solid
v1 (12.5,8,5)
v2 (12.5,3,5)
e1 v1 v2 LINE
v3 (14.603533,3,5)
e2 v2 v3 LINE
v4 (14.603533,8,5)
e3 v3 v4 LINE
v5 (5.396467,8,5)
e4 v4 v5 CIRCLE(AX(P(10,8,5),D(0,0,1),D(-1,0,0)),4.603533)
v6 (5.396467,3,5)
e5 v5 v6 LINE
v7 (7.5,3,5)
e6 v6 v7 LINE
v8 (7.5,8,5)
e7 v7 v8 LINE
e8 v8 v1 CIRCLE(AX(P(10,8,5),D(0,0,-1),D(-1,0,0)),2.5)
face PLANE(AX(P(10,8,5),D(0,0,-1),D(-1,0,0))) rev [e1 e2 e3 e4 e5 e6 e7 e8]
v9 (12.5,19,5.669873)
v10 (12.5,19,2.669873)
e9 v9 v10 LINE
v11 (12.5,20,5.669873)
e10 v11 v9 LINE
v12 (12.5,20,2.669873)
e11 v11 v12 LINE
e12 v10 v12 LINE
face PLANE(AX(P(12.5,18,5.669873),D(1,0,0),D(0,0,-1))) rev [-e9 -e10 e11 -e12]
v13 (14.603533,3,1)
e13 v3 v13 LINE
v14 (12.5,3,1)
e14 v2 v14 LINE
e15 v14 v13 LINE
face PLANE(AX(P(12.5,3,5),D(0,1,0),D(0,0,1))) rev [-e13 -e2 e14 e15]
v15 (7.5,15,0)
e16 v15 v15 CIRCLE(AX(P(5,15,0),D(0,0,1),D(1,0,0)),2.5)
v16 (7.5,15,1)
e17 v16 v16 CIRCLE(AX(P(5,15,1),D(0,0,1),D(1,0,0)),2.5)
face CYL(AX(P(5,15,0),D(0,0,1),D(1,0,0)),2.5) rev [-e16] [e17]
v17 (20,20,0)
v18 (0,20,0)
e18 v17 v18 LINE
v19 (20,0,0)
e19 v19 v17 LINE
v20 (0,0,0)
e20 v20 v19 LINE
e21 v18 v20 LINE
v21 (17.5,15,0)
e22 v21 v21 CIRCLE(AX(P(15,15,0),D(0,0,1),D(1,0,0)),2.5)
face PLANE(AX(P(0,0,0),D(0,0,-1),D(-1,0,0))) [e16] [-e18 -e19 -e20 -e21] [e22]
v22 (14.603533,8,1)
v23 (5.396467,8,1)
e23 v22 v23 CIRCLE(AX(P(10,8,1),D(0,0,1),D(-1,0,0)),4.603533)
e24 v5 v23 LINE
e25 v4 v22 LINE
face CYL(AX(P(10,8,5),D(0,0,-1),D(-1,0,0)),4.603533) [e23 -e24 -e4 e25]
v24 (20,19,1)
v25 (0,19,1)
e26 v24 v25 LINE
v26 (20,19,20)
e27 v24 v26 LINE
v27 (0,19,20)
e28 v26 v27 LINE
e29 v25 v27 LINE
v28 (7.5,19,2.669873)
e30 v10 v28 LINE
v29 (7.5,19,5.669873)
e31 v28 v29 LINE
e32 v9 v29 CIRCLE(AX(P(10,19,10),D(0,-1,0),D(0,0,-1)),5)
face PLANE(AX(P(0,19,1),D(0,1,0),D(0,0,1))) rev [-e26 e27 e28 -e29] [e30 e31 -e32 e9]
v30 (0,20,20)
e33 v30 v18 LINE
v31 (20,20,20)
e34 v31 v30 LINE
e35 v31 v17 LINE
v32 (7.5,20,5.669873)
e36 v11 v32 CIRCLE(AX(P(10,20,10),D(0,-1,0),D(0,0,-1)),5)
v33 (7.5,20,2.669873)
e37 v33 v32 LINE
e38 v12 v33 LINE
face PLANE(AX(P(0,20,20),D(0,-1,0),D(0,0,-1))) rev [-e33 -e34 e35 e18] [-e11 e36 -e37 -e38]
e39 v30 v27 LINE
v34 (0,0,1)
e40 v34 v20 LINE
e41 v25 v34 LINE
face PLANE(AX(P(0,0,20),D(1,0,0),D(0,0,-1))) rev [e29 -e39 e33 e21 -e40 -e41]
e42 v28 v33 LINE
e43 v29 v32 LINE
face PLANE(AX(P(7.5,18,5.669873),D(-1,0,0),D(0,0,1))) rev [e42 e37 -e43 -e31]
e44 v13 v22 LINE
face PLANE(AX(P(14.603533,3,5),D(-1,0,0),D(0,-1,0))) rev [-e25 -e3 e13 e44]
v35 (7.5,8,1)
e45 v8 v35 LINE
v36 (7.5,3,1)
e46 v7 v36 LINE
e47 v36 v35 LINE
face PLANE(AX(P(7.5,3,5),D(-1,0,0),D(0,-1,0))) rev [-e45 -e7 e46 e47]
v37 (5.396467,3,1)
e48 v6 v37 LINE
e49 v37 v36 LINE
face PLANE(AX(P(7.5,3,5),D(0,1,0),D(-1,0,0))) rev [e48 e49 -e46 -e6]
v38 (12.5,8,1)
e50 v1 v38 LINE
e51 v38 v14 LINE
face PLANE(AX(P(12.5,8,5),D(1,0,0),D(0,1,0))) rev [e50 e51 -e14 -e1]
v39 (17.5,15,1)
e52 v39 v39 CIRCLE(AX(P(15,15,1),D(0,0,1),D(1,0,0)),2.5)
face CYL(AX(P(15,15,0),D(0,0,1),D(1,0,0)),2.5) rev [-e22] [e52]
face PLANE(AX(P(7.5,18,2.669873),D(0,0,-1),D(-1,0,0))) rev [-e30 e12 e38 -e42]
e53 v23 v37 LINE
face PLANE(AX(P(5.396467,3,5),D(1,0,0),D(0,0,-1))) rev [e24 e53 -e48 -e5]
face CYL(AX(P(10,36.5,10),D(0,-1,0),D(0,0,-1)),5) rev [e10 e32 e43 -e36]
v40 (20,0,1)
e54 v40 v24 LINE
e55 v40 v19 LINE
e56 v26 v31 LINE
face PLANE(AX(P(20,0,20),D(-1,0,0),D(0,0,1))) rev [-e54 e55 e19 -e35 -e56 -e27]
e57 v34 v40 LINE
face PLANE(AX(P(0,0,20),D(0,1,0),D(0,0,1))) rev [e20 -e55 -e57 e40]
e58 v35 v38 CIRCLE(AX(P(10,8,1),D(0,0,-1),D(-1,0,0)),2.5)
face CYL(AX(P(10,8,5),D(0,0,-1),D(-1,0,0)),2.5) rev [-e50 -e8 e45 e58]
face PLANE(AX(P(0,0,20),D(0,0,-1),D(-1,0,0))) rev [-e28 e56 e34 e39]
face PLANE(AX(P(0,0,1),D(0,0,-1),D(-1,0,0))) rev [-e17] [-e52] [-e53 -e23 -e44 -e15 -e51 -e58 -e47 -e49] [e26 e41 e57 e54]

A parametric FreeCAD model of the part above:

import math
import FreeCAD as App
import Part
import Sketcher

V = App.Vector
Q = App.Units.Quantity

doc = App.newDocument("Part")
body = doc.addObject("PartDesign::Body", "Body")

sketch1 = body.newObject("Sketcher::SketchObject", "Sketch")
sketch1.AttachmentSupport = (doc.getObject("XY_Plane"), [""])
sketch1.MapMode = "FlatFace"
sketch1.addGeometry([
    Part.LineSegment(V(0, 20, 0), V(0, 0, 0)),
    Part.LineSegment(V(0, 0, 0), V(20, 0, 0)),
    Part.LineSegment(V(20, 0, 0), V(20, 20, 0)),
    Part.LineSegment(V(20, 20, 0), V(0, 20, 0)),
], False)
sketch1.addConstraint([
    Sketcher.Constraint("Coincident", 0, 2, 1, 1),
    Sketcher.Constraint("Coincident", 1, 2, 2, 1),
    Sketcher.Constraint("Coincident", 2, 2, 3, 1),
    Sketcher.Constraint("Coincident", 3, 2, 0, 1),
    Sketcher.Constraint("Vertical", 0),
    Sketcher.Constraint("Horizontal", 1),
    Sketcher.Constraint("Vertical", 2),
    Sketcher.Constraint("Horizontal", 3),
    Sketcher.Constraint("Coincident", 0, 2, -1, 1),
    Sketcher.Constraint("Equal", 3, 0),
    Sketcher.Constraint("DistanceX", 1, 1, 1, 2, Q("20 mm")),
])
pad1 = body.newObject("PartDesign::Pad", "Pad")
pad1.Profile = sketch1
pad1.Length = 20

sketch2 = body.newObject("Sketcher::SketchObject", "Sketch001")
sketch2.AttachmentSupport = (doc.getObject("XY_Plane"), [""])
sketch2.MapMode = "FlatFace"
sketch2.AttachmentOffset = App.Placement(V(0, 0, 20), App.Rotation())
sketch2.addGeometry([
    Part.LineSegment(V(0, 19, 0), V(0, 0, 0)),
    Part.LineSegment(V(0, 0, 0), V(20, 0, 0)),
    Part.LineSegment(V(20, 0, 0), V(20, 19, 0)),
    Part.LineSegment(V(20, 19, 0), V(0, 19, 0)),
], False)
sketch2.addConstraint([
    Sketcher.Constraint("Coincident", 0, 2, 1, 1),
    Sketcher.Constraint("Coincident", 1, 2, 2, 1),
    Sketcher.Constraint("Coincident", 2, 2, 3, 1),
    Sketcher.Constraint("Coincident", 3, 2, 0, 1),
    Sketcher.Constraint("Vertical", 0),
    Sketcher.Constraint("Horizontal", 1),
    Sketcher.Constraint("Vertical", 2),
    Sketcher.Constraint("Horizontal", 3),
    Sketcher.Constraint("Coincident", 0, 2, -1, 1),
    Sketcher.Constraint("DistanceX", 1, 1, 1, 2, Q("20 mm")),
    Sketcher.Constraint("DistanceY", 0, 2, 0, 1, Q("19 mm")),
])
pocket1 = body.newObject("PartDesign::Pocket", "Pocket")
pocket1.Profile = sketch2
pocket1.Length = 19

sketch3 = body.newObject("Sketcher::SketchObject", "Sketch002")
sketch3.AttachmentSupport = (doc.getObject("XZ_Plane"), [""])
sketch3.MapMode = "FlatFace"
sketch3.AttachmentOffset = App.Placement(V(0, 0, -19), App.Rotation())
sketch3.addGeometry(Part.Circle(V(10, 10, 0), V(0, 0, 1), 5), False)
sketch3.addConstraint([
    Sketcher.Constraint("Diameter", 0, Q("10 mm")),
    Sketcher.Constraint("DistanceX", -1, 1, 0, 3, Q("10 mm")),
    Sketcher.Constraint("DistanceY", -1, 1, 0, 3, Q("10 mm")),
])
pocket2 = body.newObject("PartDesign::Pocket", "Pocket001")
pocket2.Profile = sketch3
pocket2.Length = 17.5

sketch4 = body.newObject("Sketcher::SketchObject", "Sketch003")
sketch4.AttachmentSupport = (doc.getObject("XY_Plane"), [""])
sketch4.MapMode = "FlatFace"
sketch4.AttachmentOffset = App.Placement(V(0, 0, 1), App.Rotation())
sketch4.addGeometry([
    Part.LineSegment(V(7.5, 3, 0), V(7.5, 8, 0)),
    Part.ArcOfCircle(Part.Circle(V(10, 8, 0), V(0, 0, 1), 2.5), math.radians(0), math.radians(180)),
    Part.LineSegment(V(12.5, 8, 0), V(12.5, 3, 0)),
    Part.LineSegment(V(12.5, 3, 0), V(14.603533, 3, 0)),
    Part.LineSegment(V(14.603533, 3, 0), V(14.603533, 8, 0)),
    Part.ArcOfCircle(Part.Circle(V(10, 8, 0), V(0, 0, 1), 4.603533), math.radians(0), math.radians(180)),
    Part.LineSegment(V(5.396467, 8, 0), V(5.396467, 3, 0)),
    Part.LineSegment(V(5.396467, 3, 0), V(7.5, 3, 0)),
], False)
sketch4.addConstraint([
    Sketcher.Constraint("Tangent", 0, 2, 1, 2),
    Sketcher.Constraint("Tangent", 1, 1, 2, 1),
    Sketcher.Constraint("Coincident", 2, 2, 3, 1),
    Sketcher.Constraint("Coincident", 3, 2, 4, 1),
    Sketcher.Constraint("Tangent", 4, 2, 5, 1),
    Sketcher.Constraint("Tangent", 5, 2, 6, 1),
    Sketcher.Constraint("Coincident", 6, 2, 7, 1),
    Sketcher.Constraint("Coincident", 7, 2, 0, 1),
    Sketcher.Constraint("Vertical", 0),
    Sketcher.Constraint("Vertical", 2),
    Sketcher.Constraint("Horizontal", 3),
    Sketcher.Constraint("Vertical", 4),
    Sketcher.Constraint("Vertical", 6),
    Sketcher.Constraint("Horizontal", 7),
    Sketcher.Constraint("Coincident", 5, 3, 1, 3),
    Sketcher.Constraint("Horizontal", 3, 2, 6, 2),
    Sketcher.Constraint("Radius", 1, Q("2.5 mm")),
    Sketcher.Constraint("DistanceY", 0, 1, 0, 2, Q("5 mm")),
    Sketcher.Constraint("DistanceX", -1, 1, 1, 3, Q("10 mm")),
    Sketcher.Constraint("DistanceY", -1, 1, 1, 3, Q("8 mm")),
    Sketcher.Constraint("Radius", 5, Q("4.603533 mm")),
])
pad2 = body.newObject("PartDesign::Pad", "Pad001")
pad2.Profile = sketch4
pad2.Length = 4

sketch5 = body.newObject("Sketcher::SketchObject", "Sketch004")
sketch5.AttachmentSupport = (doc.getObject("XY_Plane"), [""])
sketch5.MapMode = "FlatFace"
sketch5.AttachmentOffset = App.Placement(V(0, 0, 1), App.Rotation())
sketch5.addGeometry([
    Part.Circle(V(5, 15, 0), V(0, 0, 1), 2.5),
    Part.Circle(V(15, 15, 0), V(0, 0, 1), 2.5),
], False)
sketch5.addConstraint([
    Sketcher.Constraint("Equal", 0, 1),
    Sketcher.Constraint("Horizontal", 0, 3, 1, 3),
    Sketcher.Constraint("Diameter", 0, Q("5 mm")),
    Sketcher.Constraint("DistanceX", -1, 1, 0, 3, Q("5 mm")),
    Sketcher.Constraint("DistanceY", -1, 1, 0, 3, Q("15 mm")),
    Sketcher.Constraint("DistanceX", -1, 1, 1, 3, Q("15 mm")),
])
pocket3 = body.newObject("PartDesign::Pocket", "Pocket002")
pocket3.Profile = sketch5
pocket3.Type = "ThroughAll"

sketch6 = body.newObject("Sketcher::SketchObject", "Sketch005")
sketch6.AttachmentSupport = (doc.getObject("XZ_Plane"), [""])
sketch6.MapMode = "FlatFace"
sketch6.AttachmentOffset = App.Placement(V(0, 0, -20), App.Rotation())
sketch6.addGeometry([
    Part.LineSegment(V(7.5, 2.669873, 0), V(7.5, 5.669873, 0)),
    Part.ArcOfCircle(Part.Circle(V(10, 10, 0), V(0, 0, 1), 5), math.radians(-120), math.radians(-60)),
    Part.LineSegment(V(12.5, 5.669873, 0), V(12.5, 2.669873, 0)),
    Part.LineSegment(V(12.5, 2.669873, 0), V(7.5, 2.669873, 0)),
], False)
sketch6.addConstraint([
    Sketcher.Constraint("Coincident", 0, 2, 1, 1),
    Sketcher.Constraint("Coincident", 1, 2, 2, 1),
    Sketcher.Constraint("Coincident", 2, 2, 3, 1),
    Sketcher.Constraint("Coincident", 3, 2, 0, 1),
    Sketcher.Constraint("Vertical", 0),
    Sketcher.Constraint("Vertical", 2),
    Sketcher.Constraint("Horizontal", 3),
    Sketcher.Constraint("Horizontal", 0, 2, 1, 2),
    Sketcher.Constraint("Radius", 1, Q("5 mm")),
    Sketcher.Constraint("DistanceX", 3, 2, 3, 1, Q("5 mm")),
    Sketcher.Constraint("DistanceY", 0, 1, 0, 2, Q("3 mm")),
    Sketcher.Constraint("DistanceX", -1, 1, 1, 3, Q("10 mm")),
    Sketcher.Constraint("DistanceY", -1, 1, 1, 3, Q("10 mm")),
])
pocket4 = body.newObject("PartDesign::Pocket", "Pocket003")
pocket4.Profile = sketch6
pocket4.Length = 2
pocket4.Reversed = True

doc.recompute()
